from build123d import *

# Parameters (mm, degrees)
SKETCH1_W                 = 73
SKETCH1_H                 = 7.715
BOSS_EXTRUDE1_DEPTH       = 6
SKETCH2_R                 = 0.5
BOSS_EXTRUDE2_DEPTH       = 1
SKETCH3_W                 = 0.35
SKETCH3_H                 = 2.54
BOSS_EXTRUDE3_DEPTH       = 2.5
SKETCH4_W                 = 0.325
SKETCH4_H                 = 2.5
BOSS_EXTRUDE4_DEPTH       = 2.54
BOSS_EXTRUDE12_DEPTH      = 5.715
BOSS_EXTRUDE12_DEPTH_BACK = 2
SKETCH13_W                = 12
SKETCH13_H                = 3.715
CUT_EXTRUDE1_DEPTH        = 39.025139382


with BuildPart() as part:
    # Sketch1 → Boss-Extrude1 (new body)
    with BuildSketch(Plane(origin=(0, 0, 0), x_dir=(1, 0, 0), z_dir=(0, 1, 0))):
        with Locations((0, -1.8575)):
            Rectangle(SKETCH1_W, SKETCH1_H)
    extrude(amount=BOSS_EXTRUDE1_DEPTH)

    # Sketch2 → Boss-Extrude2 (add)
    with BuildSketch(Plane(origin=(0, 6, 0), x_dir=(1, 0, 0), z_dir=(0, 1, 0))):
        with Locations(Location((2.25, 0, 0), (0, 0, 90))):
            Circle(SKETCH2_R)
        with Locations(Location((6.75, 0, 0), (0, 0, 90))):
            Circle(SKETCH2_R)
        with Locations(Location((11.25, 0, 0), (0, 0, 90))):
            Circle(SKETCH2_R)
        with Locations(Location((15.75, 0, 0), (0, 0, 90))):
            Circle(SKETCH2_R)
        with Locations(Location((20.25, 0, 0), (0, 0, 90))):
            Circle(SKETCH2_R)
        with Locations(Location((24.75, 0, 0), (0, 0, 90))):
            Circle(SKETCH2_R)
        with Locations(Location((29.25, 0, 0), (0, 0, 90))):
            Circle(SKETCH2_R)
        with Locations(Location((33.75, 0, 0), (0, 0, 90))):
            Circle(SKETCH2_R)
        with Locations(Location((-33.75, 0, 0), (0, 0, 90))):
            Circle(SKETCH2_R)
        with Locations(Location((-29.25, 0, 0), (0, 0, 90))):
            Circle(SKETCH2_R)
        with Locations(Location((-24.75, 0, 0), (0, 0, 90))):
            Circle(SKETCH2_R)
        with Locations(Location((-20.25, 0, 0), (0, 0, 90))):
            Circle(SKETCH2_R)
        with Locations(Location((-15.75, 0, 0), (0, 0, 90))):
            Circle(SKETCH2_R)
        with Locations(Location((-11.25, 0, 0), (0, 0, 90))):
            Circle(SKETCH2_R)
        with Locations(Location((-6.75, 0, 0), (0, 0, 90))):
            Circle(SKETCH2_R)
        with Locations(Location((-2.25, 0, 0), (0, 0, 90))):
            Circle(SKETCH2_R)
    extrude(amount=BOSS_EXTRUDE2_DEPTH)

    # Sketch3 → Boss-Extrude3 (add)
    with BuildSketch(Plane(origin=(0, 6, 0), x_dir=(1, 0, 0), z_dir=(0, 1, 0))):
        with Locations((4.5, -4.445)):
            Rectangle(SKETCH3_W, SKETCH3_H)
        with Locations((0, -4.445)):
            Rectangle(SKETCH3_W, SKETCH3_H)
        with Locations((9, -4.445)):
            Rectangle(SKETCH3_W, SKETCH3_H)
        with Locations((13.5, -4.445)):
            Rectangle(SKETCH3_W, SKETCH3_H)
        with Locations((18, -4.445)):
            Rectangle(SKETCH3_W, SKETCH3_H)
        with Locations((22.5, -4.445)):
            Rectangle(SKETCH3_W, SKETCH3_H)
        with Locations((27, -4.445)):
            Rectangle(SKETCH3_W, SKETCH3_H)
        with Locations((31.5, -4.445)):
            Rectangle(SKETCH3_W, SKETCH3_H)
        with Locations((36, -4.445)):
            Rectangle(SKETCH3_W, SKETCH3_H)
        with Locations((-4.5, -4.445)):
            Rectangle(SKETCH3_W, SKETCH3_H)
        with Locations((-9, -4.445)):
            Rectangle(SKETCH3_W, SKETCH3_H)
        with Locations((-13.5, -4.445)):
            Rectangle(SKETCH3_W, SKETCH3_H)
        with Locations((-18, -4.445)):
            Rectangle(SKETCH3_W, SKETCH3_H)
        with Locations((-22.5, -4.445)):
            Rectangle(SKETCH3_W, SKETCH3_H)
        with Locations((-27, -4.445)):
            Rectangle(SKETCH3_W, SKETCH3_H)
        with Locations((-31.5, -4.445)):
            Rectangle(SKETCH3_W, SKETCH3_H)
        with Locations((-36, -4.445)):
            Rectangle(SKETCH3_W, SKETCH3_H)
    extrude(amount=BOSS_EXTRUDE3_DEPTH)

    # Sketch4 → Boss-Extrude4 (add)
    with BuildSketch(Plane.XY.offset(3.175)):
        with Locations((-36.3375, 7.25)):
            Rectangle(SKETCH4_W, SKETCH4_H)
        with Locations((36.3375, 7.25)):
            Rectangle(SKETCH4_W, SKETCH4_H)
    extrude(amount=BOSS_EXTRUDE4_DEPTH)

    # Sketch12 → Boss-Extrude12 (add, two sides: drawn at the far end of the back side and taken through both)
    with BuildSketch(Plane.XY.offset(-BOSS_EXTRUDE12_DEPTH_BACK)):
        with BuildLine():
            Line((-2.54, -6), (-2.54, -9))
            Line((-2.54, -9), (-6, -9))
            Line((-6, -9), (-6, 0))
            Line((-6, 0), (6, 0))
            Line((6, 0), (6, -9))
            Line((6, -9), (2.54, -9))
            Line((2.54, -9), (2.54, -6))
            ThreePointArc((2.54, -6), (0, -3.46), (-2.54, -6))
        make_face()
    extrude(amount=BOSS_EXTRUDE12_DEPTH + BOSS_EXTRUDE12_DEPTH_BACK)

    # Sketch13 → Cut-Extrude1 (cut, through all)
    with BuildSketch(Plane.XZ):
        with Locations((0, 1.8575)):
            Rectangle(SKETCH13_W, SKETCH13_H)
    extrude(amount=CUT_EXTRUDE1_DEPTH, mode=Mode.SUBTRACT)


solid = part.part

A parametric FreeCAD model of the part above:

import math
import FreeCAD as App
import Part
import Sketcher


def add_polygon(sketch, points):
    """Adds a closed chain of lines whose ends are joined by coincident constraints."""
    first, n = sketch.GeometryCount, len(points)
    for a, b in zip(points, points[1:] + points[:1]):
        sketch.addGeometry(Part.LineSegment(App.Vector(*a, 0), App.Vector(*b, 0)), False)
    for i in range(n):
        sketch.addConstraint(Sketcher.Constraint("Coincident", first + i, 2, first + (i + 1) % n, 1))

doc = App.newDocument("Part")
body = doc.addObject("PartDesign::Body", "Body")

# Sketch on XZ plane
sketch1 = body.newObject("Sketcher::SketchObject", "Sketch")
sketch1.AttachmentSupport = (doc.getObject("XZ_Plane"), [""])
sketch1.MapMode = "FlatFace"
add_polygon(sketch1, [(-36, -2), (-36, 6), (36, 6), (36, -2)])  # lines 0-3
sketch1.addConstraint([
    Sketcher.Constraint("Vertical", 0),
    Sketcher.Constraint("Horizontal", 1),
    Sketcher.Constraint("Vertical", 2),
    Sketcher.Constraint("Horizontal", 3),
    Sketcher.Constraint("DistanceX", 1, 1, 1, 2, 73.0),
    Sketcher.Constraint("DistanceY", 2, 2, -1, 1, 2.0),
    Sketcher.Constraint("DistanceX", 0, 2, -1, 1, 36.5),
    Sketcher.Constraint("DistanceY", 0, 1, 0, 2, 7.715),
])
pad1 = body.newObject("PartDesign::Pad", "Pad")
pad1.Profile = sketch1
pad1.Length = 6
pad1.Reversed = True

# Sketch on XZ plane
sketch2 = body.newObject("Sketcher::SketchObject", "Sketch001")
sketch2.AttachmentSupport = (doc.getObject("XZ_Plane"), [""])
sketch2.MapMode = "FlatFace"
sketch2.AttachmentOffset = App.Placement(App.Vector(0, 0, -6), App.Rotation())
sketch2.addGeometry([
    Part.Circle(App.Vector(2.2, 0, 0), App.Vector(0, 0, 1), 0.5),  # 0
    Part.Circle(App.Vector(6.8, 0, 0), App.Vector(0, 0, 1), 0.5),  # 1
    Part.Circle(App.Vector(11.2, 0, 0), App.Vector(0, 0, 1), 0.5),  # 2
    Part.Circle(App.Vector(15.8, 0, 0), App.Vector(0, 0, 1), 0.5),  # 3
    Part.Circle(App.Vector(20.2, 0, 0), App.Vector(0, 0, 1), 0.5),  # 4
    Part.Circle(App.Vector(24.8, 0, 0), App.Vector(0, 0, 1), 0.5),  # 5
    Part.Circle(App.Vector(29.2, 0, 0), App.Vector(0, 0, 1), 0.5),  # 6
    Part.Circle(App.Vector(33.8, 0, 0), App.Vector(0, 0, 1), 0.5),  # 7
    Part.Circle(App.Vector(-33.8, 0, 0), App.Vector(0, 0, 1), 0.5),  # 8
    Part.Circle(App.Vector(-29.2, 0, 0), App.Vector(0, 0, 1), 0.5),  # 9
    Part.Circle(App.Vector(-24.8, 0, 0), App.Vector(0, 0, 1), 0.5),  # 10
    Part.Circle(App.Vector(-20.2, 0, 0), App.Vector(0, 0, 1), 0.5),  # 11
    Part.Circle(App.Vector(-15.8, 0, 0), App.Vector(0, 0, 1), 0.5),  # 12
    Part.Circle(App.Vector(-11.2, 0, 0), App.Vector(0, 0, 1), 0.5),  # 13
    Part.Circle(App.Vector(-6.8, 0, 0), App.Vector(0, 0, 1), 0.5),  # 14
    Part.Circle(App.Vector(-2.2, 0, 0), App.Vector(0, 0, 1), 0.5),  # 15
], False)
sketch2.addConstraint([
    Sketcher.Constraint("Equal", 0, 1),
    Sketcher.Constraint("Equal", 1, 2),
    Sketcher.Constraint("Equal", 2, 3),
    Sketcher.Constraint("Equal", 3, 4),
    Sketcher.Constraint("Equal", 4, 5),
    Sketcher.Constraint("Equal", 5, 6),
    Sketcher.Constraint("Equal", 6, 7),
    Sketcher.Constraint("Equal", 7, 8),
    Sketcher.Constraint("Equal", 8, 9),
    Sketcher.Constraint("Equal", 9, 10),
    Sketcher.Constraint("Equal", 10, 11),
    Sketcher.Constraint("Equal", 11, 12),
    Sketcher.Constraint("Equal", 12, 13),
    Sketcher.Constraint("Equal", 13, 14),
    Sketcher.Constraint("Equal", 14, 15),
    Sketcher.Constraint("Symmetric", 7, 3, 8, 3, -1, 1),
    Sketcher.Constraint("Symmetric", 6, 3, 9, 3, -1, 1),
    Sketcher.Constraint("Symmetric", 5, 3, 10, 3, -1, 1),
    Sketcher.Constraint("Symmetric", 4, 3, 11, 3, -1, 1),
    Sketcher.Constraint("Symmetric", 3, 3, 12, 3, -1, 1),
    Sketcher.Constraint("Symmetric", 2, 3, 13, 3, -1, 1),
    Sketcher.Constraint("Symmetric", 1, 3, 14, 3, -1, 1),
    Sketcher.Constraint("Symmetric", 0, 3, 15, 3, -1, 1),
    Sketcher.Constraint("PointOnObject", 0, 3, -1),
    Sketcher.Constraint("PointOnObject", 1, 3, -1),
    Sketcher.Constraint("PointOnObject", 2, 3, -1),
    Sketcher.Constraint("PointOnObject", 3, 3, -1),
    Sketcher.Constraint("PointOnObject", 4, 3, -1),
    Sketcher.Constraint("PointOnObject", 5, 3, -1),
    Sketcher.Constraint("PointOnObject", 6, 3, -1),
    Sketcher.Constraint("PointOnObject", 7, 3, -1),
    Sketcher.Constraint("Diameter", 0, 1.0),
    Sketcher.Constraint("DistanceX", 0, 3, 2, 3, 9.0),
    Sketcher.Constraint("DistanceX", 1, 3, 3, 3, 9.0),
    Sketcher.Constraint("DistanceX", 2, 3, 4, 3, 9.0),
    Sketcher.Constraint("DistanceX", 3, 3, 5, 3, 9.0),
    Sketcher.Constraint("DistanceX", 4, 3, 6, 3, 9.0),
    Sketcher.Constraint("DistanceX", 5, 3, 7, 3, 9.0),
    Sketcher.Constraint("DistanceX", 8, 3, 0, 3, 36.0),
    Sketcher.Constraint("DistanceX", 0, 3, 1, 3, 4.5),
])
pad2 = body.newObject("PartDesign::Pad", "Pad001")
pad2.Profile = sketch2
pad2.Length = 1
pad2.Reversed = True

# Sketch on XZ plane
sketch3 = body.newObject("Sketcher::SketchObject", "Sketch002")
sketch3.AttachmentSupport = (doc.getObject("XZ_Plane"), [""])
sketch3.MapMode = "FlatFace"
sketch3.AttachmentOffset = App.Placement(App.Vector(0, 0, -6), App.Rotation())
add_polygon(sketch3, [(4.33, 3.17), (4.33, 5.71), (4.67, 5.71), (4.67, 3.17)])  # lines 0-3
add_polygon(sketch3, [(-0.17, 3.17), (-0.17, 5.71), (0.17, 5.71), (0.17, 3.17)])  # lines 4-7
add_polygon(sketch3, [(8.82, 3.17), (8.82, 5.71), (9.18, 5.71), (9.18, 3.17)])  # lines 8-11
add_polygon(sketch3, [(13.32, 3.17), (13.32, 5.71), (13.68, 5.71), (13.68, 3.17)])  # lines 12-15
add_polygon(sketch3, [(17.82, 3.17), (17.82, 5.71), (18.18, 5.71), (18.18, 3.17)])  # lines 16-19
add_polygon(sketch3, [(22.32, 3.17), (22.32, 5.71), (22.68, 5.71), (22.68, 3.17)])  # lines 20-23
add_polygon(sketch3, [(26.82, 3.17), (26.82, 5.71), (27.18, 5.71), (27.18, 3.17)])  # lines 24-27
add_polygon(sketch3, [(31.32, 3.17), (31.32, 5.71), (31.68, 5.71), (31.68, 3.17)])  # lines 28-31
add_polygon(sketch3, [(35.83, 3.17), (35.83, 5.71), (36.17, 5.71), (36.17, 3.17)])  # lines 32-35
add_polygon(sketch3, [(-4.67, 3.17), (-4.67, 5.71), (-4.33, 5.71), (-4.33, 3.17)])  # lines 36-39
add_polygon(sketch3, [(-9.18, 3.17), (-9.18, 5.71), (-8.82, 5.71), (-8.82, 3.17)])  # lines 40-43
add_polygon(sketch3, [(-13.68, 3.17), (-13.68, 5.71), (-13.32, 5.71), (-13.32, 3.17)])  # lines 44-47
add_polygon(sketch3, [(-18.18, 3.17), (-18.18, 5.71), (-17.82, 5.71), (-17.82, 3.17)])  # lines 48-51
add_polygon(sketch3, [(-22.68, 3.17), (-22.68, 5.71), (-22.32, 5.71), (-22.32, 3.17)])  # lines 52-55
add_polygon(sketch3, [(-27.18, 3.17), (-27.18, 5.71), (-26.82, 5.71), (-26.82, 3.17)])  # lines 56-59
add_polygon(sketch3, [(-31.68, 3.17), (-31.68, 5.71), (-31.32, 5.71), (-31.32, 3.17)])  # lines 60-63
add_polygon(sketch3, [(-36.17, 3.17), (-36.17, 5.71), (-35.83, 5.71), (-35.83, 3.17)])  # lines 64-67
sketch3.addConstraint([
    Sketcher.Constraint("Vertical", 0),
    Sketcher.Constraint("Horizontal", 1),
    Sketcher.Constraint("Vertical", 2),
    Sketcher.Constraint("Horizontal", 3),
    Sketcher.Constraint("Vertical", 4),
    Sketcher.Constraint("Horizontal", 5),
    Sketcher.Constraint("Vertical", 6),
    Sketcher.Constraint("Horizontal", 7),
    Sketcher.Constraint("Vertical", 8),
    Sketcher.Constraint("Horizontal", 9),
    Sketcher.Constraint("Vertical", 10),
    Sketcher.Constraint("Horizontal", 11),
    Sketcher.Constraint("Vertical", 12),
    Sketcher.Constraint("Horizontal", 13),
    Sketcher.Constraint("Vertical", 14),
    Sketcher.Constraint("Horizontal", 15),
    Sketcher.Constraint("Vertical", 16),
    Sketcher.Constraint("Horizontal", 17),
    Sketcher.Constraint("Vertical", 18),
    Sketcher.Constraint("Horizontal", 19),
    Sketcher.Constraint("Vertical", 20),
    Sketcher.Constraint("Horizontal", 21),
    Sketcher.Constraint("Vertical", 22),
    Sketcher.Constraint("Horizontal", 23),
    Sketcher.Constraint("Vertical", 24),
    Sketcher.Constraint("Horizontal", 25),
    Sketcher.Constraint("Vertical", 26),
    Sketcher.Constraint("Horizontal", 27),
    Sketcher.Constraint("Vertical", 28),
    Sketcher.Constraint("Horizontal", 29),
    Sketcher.Constraint("Vertical", 30),
    Sketcher.Constraint("Horizontal", 31),
    Sketcher.Constraint("Vertical", 32),
    Sketcher.Constraint("Horizontal", 33),
    Sketcher.Constraint("Vertical", 34),
    Sketcher.Constraint("Horizontal", 35),
    Sketcher.Constraint("Vertical", 36),
    Sketcher.Constraint("Horizontal", 37),
    Sketcher.Constraint("Vertical", 38),
    Sketcher.Constraint("Horizontal", 39),
    Sketcher.Constraint("Vertical", 40),
    Sketcher.Constraint("Horizontal", 41),
    Sketcher.Constraint("Vertical", 42),
    Sketcher.Constraint("Horizontal", 43),
    Sketcher.Constraint("Vertical", 44),
    Sketcher.Constraint("Horizontal", 45),
    Sketcher.Constraint("Vertical", 46),
    Sketcher.Constraint("Horizontal", 47),
    Sketcher.Constraint("Vertical", 48),
    Sketcher.Constraint("Horizontal", 49),
    Sketcher.Constraint("Vertical", 50),
    Sketcher.Constraint("Horizontal", 51),
    Sketcher.Constraint("Vertical", 52),
    Sketcher.Constraint("Horizontal", 53),
    Sketcher.Constraint("Vertical", 54),
    Sketcher.Constraint("Horizontal", 55),
    Sketcher.Constraint("Vertical", 56),
    Sketcher.Constraint("Horizontal", 57),
    Sketcher.Constraint("Vertical", 58),
    Sketcher.Constraint("Horizontal", 59),
    Sketcher.Constraint("Vertical", 60),
    Sketcher.Constraint("Horizontal", 61),
    Sketcher.Constraint("Vertical", 62),
    Sketcher.Constraint("Horizontal", 63),
    Sketcher.Constraint("Vertical", 64),
    Sketcher.Constraint("Horizontal", 65),
    Sketcher.Constraint("Vertical", 66),
    Sketcher.Constraint("Horizontal", 67),
    Sketcher.Constraint("Symmetric", 1, 2, 36, 2, -2),
    Sketcher.Constraint("Symmetric", 3, 2, 38, 2, -2),
    Sketcher.Constraint("Symmetric", 9, 2, 40, 2, -2),
    Sketcher.Constraint("Symmetric", 11, 2, 42, 2, -2),
    Sketcher.Constraint("Symmetric", 13, 2, 44, 2, -2),
    Sketcher.Constraint("Symmetric", 15, 2, 46, 2, -2),
    Sketcher.Constraint("Symmetric", 17, 2, 48, 2, -2),
    Sketcher.Constraint("Symmetric", 19, 2, 50, 2, -2),
    Sketcher.Constraint("Symmetric", 21, 2, 52, 2, -2),
    Sketcher.Constraint("Symmetric", 23, 2, 54, 2, -2),
    Sketcher.Constraint("Symmetric", 25, 2, 56, 2, -2),
    Sketcher.Constraint("Symmetric", 27, 2, 58, 2, -2),
    Sketcher.Constraint("Symmetric", 29, 2, 60, 2, -2),
    Sketcher.Constraint("Symmetric", 31, 2, 62, 2, -2),
    Sketcher.Constraint("Symmetric", 33, 2, 64, 2, -2),
    Sketcher.Constraint("Symmetric", 35, 2, 66, 2, -2),
    Sketcher.Constraint("Horizontal", 1, 2, 4, 2),
    Sketcher.Constraint("Horizontal", 3, 2, 6, 2),
    Sketcher.Constraint("Horizontal", 5, 2, 8, 2),
    Sketcher.Constraint("Horizontal", 7, 2, 10, 2),
    Sketcher.Constraint("Horizontal", 9, 2, 12, 2),
    Sketcher.Constraint("Horizontal", 11, 2, 14, 2),
    Sketcher.Constraint("Horizontal", 13, 2, 16, 2),
    Sketcher.Constraint("Horizontal", 15, 2, 18, 2),
    Sketcher.Constraint("Horizontal", 17, 2, 20, 2),
    Sketcher.Constraint("Horizontal", 19, 2, 22, 2),
    Sketcher.Constraint("Horizontal", 21, 2, 24, 2),
    Sketcher.Constraint("Horizontal", 23, 2, 26, 2),
    Sketcher.Constraint("Horizontal", 25, 2, 28, 2),
    Sketcher.Constraint("Horizontal", 27, 2, 30, 2),
    Sketcher.Constraint("Horizontal", 29, 2, 32, 2),
    Sketcher.Constraint("Horizontal", 31, 2, 34, 2),
    Sketcher.Constraint("Equal", 3, 5),
    Sketcher.Constraint("Equal", 7, 9),
    Sketcher.Constraint("Equal", 11, 13),
    Sketcher.Constraint("Equal", 15, 17),
    Sketcher.Constraint("Equal", 19, 21),
    Sketcher.Constraint("Equal", 23, 25),
    Sketcher.Constraint("Equal", 27, 29),
    Sketcher.Constraint("Equal", 31, 33),
    Sketcher.Constraint("DistanceX", 1, 1, 1, 2, 0.35),
    Sketcher.Constraint("DistanceY", 0, 1, 0, 2, 2.54),
    Sketcher.Constraint("DistanceX", -1, 1, 0, 2, 4.325),
    Sketcher.Constraint("DistanceY", -1, 1, 0, 2, 5.715),
    Sketcher.Constraint("DistanceX", 4, 2, -1, 1, 0.175),
    Sketcher.Constraint("DistanceX", -1, 1, 8, 2, 8.825),
    Sketcher.Constraint("DistanceX", -1, 1, 12, 2, 13.325),
    Sketcher.Constraint("DistanceX", -1, 1, 16, 2, 17.825),
    Sketcher.Constraint("DistanceX", -1, 1, 20, 2, 22.325),
    Sketcher.Constraint("DistanceX", -1, 1, 24, 2, 26.825),
    Sketcher.Constraint("DistanceX", -1, 1, 28, 2, 31.325),
    Sketcher.Constraint("DistanceX", -1, 1, 32, 2, 35.825),
])
pad3 = body.newObject("PartDesign::Pad", "Pad002")
pad3.Profile = sketch3
pad3.Length = 2.5
pad3.Reversed = True

# Sketch on XY plane
sketch4 = body.newObject("Sketcher::SketchObject", "Sketch003")
sketch4.AttachmentSupport = (doc.getObject("XY_Plane"), [""])
sketch4.MapMode = "FlatFace"
sketch4.AttachmentOffset = App.Placement(App.Vector(0, 0, 3.175), App.Rotation())
add_polygon(sketch4, [(-36.5, 8.5), (-36.5, 6), (-36.17, 6), (-36.17, 8.5)])  # lines 0-3
add_polygon(sketch4, [(36.17, 8.5), (36.17, 6), (36.5, 6), (36.5, 8.5)])  # lines 4-7
sketch4.addConstraint([
    Sketcher.Constraint("Vertical", 0),
    Sketcher.Constraint("Horizontal", 1),
    Sketcher.Constraint("Vertical", 2),
    Sketcher.Constraint("Horizontal", 3),
    Sketcher.Constraint("Vertical", 4),
    Sketcher.Constraint("Horizontal", 5),
    Sketcher.Constraint("Vertical", 6),
    Sketcher.Constraint("Horizontal", 7),
    Sketcher.Constraint("Symmetric", 1, 2, 4, 2, -2),
    Sketcher.Constraint("Symmetric", 3, 2, 6, 2, -2),
    Sketcher.Constraint("DistanceY", 0, 2, 0, 1, 2.5),
    Sketcher.Constraint("DistanceY", -1, 1, 0, 2, 6.0),
    Sketcher.Constraint("DistanceX", 0, 2, 5, 2, 73.0),
    Sketcher.Constraint("DistanceX", 1, 1, 1, 2, 0.325),
])
pad4 = body.newObject("PartDesign::Pad", "Pad003")
pad4.Profile = sketch4
pad4.Length = 2.54

# Sketch on XY plane
sketch5 = body.newObject("Sketcher::SketchObject", "Sketch004")
sketch5.AttachmentSupport = (doc.getObject("XY_Plane"), [""])
sketch5.MapMode = "FlatFace"
sketch5.addGeometry([
    Part.LineSegment(App.Vector(-2.5, -9, 0), App.Vector(-2.5, -6, 0)),  # 0
    Part.ArcOfCircle(Part.Circle(App.Vector(0, -6, 0), App.Vector(0, 0, 1), 2.5), math.radians(0), math.radians(180)),  # 1
    Part.LineSegment(App.Vector(2.5, -6, 0), App.Vector(2.5, -9, 0)),  # 2
    Part.LineSegment(App.Vector(2.5, -9, 0), App.Vector(6, -9, 0)),  # 3
    Part.LineSegment(App.Vector(6, -9, 0), App.Vector(6, 0, 0)),  # 4
    Part.LineSegment(App.Vector(6, 0, 0), App.Vector(-6, 0, 0)),  # 5
    Part.LineSegment(App.Vector(-6, 0, 0), App.Vector(-6, -9, 0)),  # 6
    Part.LineSegment(App.Vector(-6, -9, 0), App.Vector(-2.5, -9, 0)),  # 7
], False)
sketch5.addConstraint([
    Sketcher.Constraint("Tangent", 0, 2, 1, 2),
    Sketcher.Constraint("Tangent", 1, 1, 2, 1),
    Sketcher.Constraint("Coincident", 2, 2, 3, 1),
    Sketcher.Constraint("Coincident", 3, 2, 4, 1),
    Sketcher.Constraint("Coincident", 4, 2, 5, 1),
    Sketcher.Constraint("Coincident", 5, 2, 6, 1),
    Sketcher.Constraint("Coincident", 6, 2, 7, 1),
    Sketcher.Constraint("Coincident", 7, 2, 0, 1),
    Sketcher.Constraint("Vertical", 0),
    Sketcher.Constraint("Vertical", 2),
    Sketcher.Constraint("Horizontal", 3),
    Sketcher.Constraint("Vertical", 4),
    Sketcher.Constraint("Horizontal", 5),
    Sketcher.Constraint("Vertical", 6),
    Sketcher.Constraint("Horizontal", 7),
    Sketcher.Constraint("Symmetric", 4, 2, 5, 2, -1, 1),
    Sketcher.Constraint("Symmetric", 2, 2, 7, 2, -2),
    Sketcher.Constraint("DistanceX", 5, 2, 5, 1, 12.0),
    Sketcher.Constraint("DistanceY", 0, 1, 0, 2, 3.0),
    Sketcher.Constraint("DistanceY", 4, 1, 4, 2, 9.0),
    Sketcher.Constraint("Radius", 1, 2.54),
])
pad5 = body.newObject("PartDesign::Pad", "Pad004")
pad5.Profile = sketch5
pad5.Type = "TwoLengths"
pad5.Length = 5.715
pad5.Length2 = 2

# Sketch on XZ plane
sketch6 = body.newObject("Sketcher::SketchObject", "Sketch005")
sketch6.AttachmentSupport = (doc.getObject("XZ_Plane"), [""])
sketch6.MapMode = "FlatFace"
add_polygon(sketch6, [(-6, 3.7), (-6, 0), (6, 0), (6, 3.7)])  # lines 0-3
sketch6.addConstraint([
    Sketcher.Constraint("Vertical", 0),
    Sketcher.Constraint("Horizontal", 1),
    Sketcher.Constraint("Vertical", 2),
    Sketcher.Constraint("Horizontal", 3),
    Sketcher.Constraint("Symmetric", 0, 2, 1, 2, -1, 1),
    Sketcher.Constraint("DistanceX", 1, 1, 1, 2, 12.0),
    Sketcher.Constraint("DistanceY", 0, 2, 0, 1, 3.715),
])
pocket1 = body.newObject("PartDesign::Pocket", "Pocket")
pocket1.Profile = sketch6
pocket1.Type = "ThroughAll"
pocket1.Reversed = True

doc.recompute()
